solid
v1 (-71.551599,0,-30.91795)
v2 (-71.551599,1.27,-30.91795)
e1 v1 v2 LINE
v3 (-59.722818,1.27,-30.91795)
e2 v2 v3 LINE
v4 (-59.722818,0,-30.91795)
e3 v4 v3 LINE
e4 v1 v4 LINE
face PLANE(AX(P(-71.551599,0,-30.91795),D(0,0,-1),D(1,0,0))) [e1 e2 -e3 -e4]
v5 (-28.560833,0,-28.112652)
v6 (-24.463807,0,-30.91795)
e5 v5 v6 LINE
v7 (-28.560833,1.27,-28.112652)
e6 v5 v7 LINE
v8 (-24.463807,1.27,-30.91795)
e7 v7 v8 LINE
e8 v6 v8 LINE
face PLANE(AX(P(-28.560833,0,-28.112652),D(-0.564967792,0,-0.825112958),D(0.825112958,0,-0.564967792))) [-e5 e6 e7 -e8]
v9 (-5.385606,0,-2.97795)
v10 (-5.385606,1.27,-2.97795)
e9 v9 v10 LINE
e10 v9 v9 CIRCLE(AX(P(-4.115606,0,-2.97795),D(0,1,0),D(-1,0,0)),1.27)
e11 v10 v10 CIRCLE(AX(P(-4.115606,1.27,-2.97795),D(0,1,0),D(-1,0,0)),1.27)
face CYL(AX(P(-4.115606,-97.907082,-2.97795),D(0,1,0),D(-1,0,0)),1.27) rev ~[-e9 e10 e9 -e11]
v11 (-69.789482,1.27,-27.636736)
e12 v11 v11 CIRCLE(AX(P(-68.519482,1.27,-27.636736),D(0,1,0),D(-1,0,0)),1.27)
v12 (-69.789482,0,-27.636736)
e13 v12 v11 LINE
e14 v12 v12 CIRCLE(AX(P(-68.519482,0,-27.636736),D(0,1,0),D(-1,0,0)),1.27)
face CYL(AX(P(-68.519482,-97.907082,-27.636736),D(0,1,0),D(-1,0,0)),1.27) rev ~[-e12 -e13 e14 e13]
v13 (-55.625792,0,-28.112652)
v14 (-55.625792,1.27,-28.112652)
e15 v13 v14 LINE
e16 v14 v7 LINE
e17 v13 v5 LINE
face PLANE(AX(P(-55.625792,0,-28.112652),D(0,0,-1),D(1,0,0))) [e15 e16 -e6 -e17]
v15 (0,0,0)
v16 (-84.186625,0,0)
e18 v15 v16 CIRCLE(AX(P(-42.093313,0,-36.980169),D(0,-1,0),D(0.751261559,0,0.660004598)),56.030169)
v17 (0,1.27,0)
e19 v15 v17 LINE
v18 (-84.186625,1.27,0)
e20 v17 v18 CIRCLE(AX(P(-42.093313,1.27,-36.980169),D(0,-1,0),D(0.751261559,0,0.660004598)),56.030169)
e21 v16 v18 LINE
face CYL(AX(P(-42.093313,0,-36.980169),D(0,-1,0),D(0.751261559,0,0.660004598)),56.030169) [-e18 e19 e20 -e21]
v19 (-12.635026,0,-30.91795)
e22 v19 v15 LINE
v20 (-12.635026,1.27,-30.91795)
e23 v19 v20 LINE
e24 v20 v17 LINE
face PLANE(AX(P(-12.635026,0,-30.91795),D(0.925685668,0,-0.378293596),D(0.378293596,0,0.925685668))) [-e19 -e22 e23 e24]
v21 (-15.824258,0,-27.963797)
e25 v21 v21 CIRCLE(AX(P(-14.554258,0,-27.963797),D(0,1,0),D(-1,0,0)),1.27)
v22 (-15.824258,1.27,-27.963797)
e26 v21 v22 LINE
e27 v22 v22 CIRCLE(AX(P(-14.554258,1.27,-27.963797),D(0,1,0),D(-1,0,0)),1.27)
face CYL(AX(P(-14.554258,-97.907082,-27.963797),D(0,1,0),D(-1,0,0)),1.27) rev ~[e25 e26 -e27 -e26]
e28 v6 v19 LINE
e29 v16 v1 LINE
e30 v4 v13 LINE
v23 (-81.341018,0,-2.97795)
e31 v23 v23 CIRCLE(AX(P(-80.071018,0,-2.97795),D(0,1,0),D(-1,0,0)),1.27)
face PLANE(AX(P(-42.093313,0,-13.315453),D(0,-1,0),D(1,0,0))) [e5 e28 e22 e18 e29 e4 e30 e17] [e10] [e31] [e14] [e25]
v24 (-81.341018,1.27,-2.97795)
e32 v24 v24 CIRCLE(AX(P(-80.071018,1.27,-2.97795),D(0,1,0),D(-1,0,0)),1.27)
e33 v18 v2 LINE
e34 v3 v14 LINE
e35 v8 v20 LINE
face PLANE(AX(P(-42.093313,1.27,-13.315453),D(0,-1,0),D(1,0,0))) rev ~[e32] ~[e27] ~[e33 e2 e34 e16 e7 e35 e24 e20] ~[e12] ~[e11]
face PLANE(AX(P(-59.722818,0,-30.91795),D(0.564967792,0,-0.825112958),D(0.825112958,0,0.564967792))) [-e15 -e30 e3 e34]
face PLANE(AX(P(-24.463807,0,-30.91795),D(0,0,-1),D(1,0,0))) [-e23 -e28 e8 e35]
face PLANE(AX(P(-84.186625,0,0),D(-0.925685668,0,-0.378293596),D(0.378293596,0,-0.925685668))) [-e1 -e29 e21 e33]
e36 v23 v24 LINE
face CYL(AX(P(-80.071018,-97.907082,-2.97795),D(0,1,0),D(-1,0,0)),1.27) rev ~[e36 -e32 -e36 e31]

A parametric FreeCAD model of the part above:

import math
import FreeCAD as App
import Part
import Sketcher
from FreeCAD import Vector
Q = App.Units.Quantity

doc = App.newDocument("Part")
params = doc.addObject("Spreadsheet::Sheet", "Params")
for row, (alias, value) in enumerate([
    ("pad1_length", "0.05 in"),
    ("sketch2_diameter", "0.1 in"),
    ("hole_diameter", "0.1 in"),
], start=1):
    params.set(f"A{row}", alias)
    params.set(f"B{row}", "=" + value)
    params.setAlias(f"B{row}", alias)

body = doc.addObject("PartDesign::Body", "Body")

# Sketch on XZ plane
sketch1 = body.newObject("Sketcher::SketchObject", "Sketch")
sketch1.AttachmentSupport = (doc.getObject("XZ_Plane"), [""])
sketch1.MapMode = "FlatFace"
sketch1.addGeometry(Part.LineSegment(Vector(-12.6, -30.9, 0), Vector(0, 0, 0)), False)
sketch1.addGeometry(Part.ArcOfCircle(Part.Circle(Vector(-42.1, -37, 0), Vector(0, 0, 1), 56), math.radians(41), math.radians(139)), False)
sketch1.addGeometry(Part.LineSegment(Vector(-84.2, 0, 0), Vector(-71.6, -30.9, 0)), False)
sketch1.addGeometry(Part.LineSegment(Vector(-71.6, -30.9, 0), Vector(-59.7, -30.9, 0)), False)
sketch1.addGeometry(Part.LineSegment(Vector(-59.7, -30.9, 0), Vector(-55.6, -28.1, 0)), False)
sketch1.addGeometry(Part.LineSegment(Vector(-55.6, -28.1, 0), Vector(-28.6, -28.1, 0)), False)
sketch1.addGeometry(Part.LineSegment(Vector(-28.6, -28.1, 0), Vector(-24.5, -30.9, 0)), False)
sketch1.addGeometry(Part.LineSegment(Vector(-24.5, -30.9, 0), Vector(-12.6, -30.9, 0)), False)
sketch1.addConstraint(Sketcher.Constraint("Coincident", 0, 2, 1, 1))
sketch1.addConstraint(Sketcher.Constraint("Coincident", 1, 2, 2, 1))
sketch1.addConstraint(Sketcher.Constraint("Coincident", 2, 2, 3, 1))
sketch1.addConstraint(Sketcher.Constraint("Coincident", 3, 2, 4, 1))
sketch1.addConstraint(Sketcher.Constraint("Coincident", 4, 2, 5, 1))
sketch1.addConstraint(Sketcher.Constraint("Coincident", 5, 2, 6, 1))
sketch1.addConstraint(Sketcher.Constraint("Coincident", 6, 2, 7, 1))
sketch1.addConstraint(Sketcher.Constraint("Coincident", 7, 2, 0, 1))
sketch1.addConstraint(Sketcher.Constraint("Horizontal", 3))
sketch1.addConstraint(Sketcher.Constraint("Horizontal", 5))
sketch1.addConstraint(Sketcher.Constraint("Horizontal", 7))
sketch1.addConstraint(Sketcher.Constraint("Coincident", 0, 2, -1, 1))
sketch1.addConstraint(Sketcher.Constraint("PointOnObject", 1, 2, -1))
sketch1.addConstraint(Sketcher.Constraint("Horizontal", 3, 2, 6, 2))
sketch1.addConstraint(Sketcher.Constraint("Equal", 3, 7))
sketch1.addConstraint(Sketcher.Constraint("Equal", 0, 2))
sketch1.addConstraint(Sketcher.Constraint("Equal", 4, 6))
sketch1.addConstraint(Sketcher.Constraint("DistanceX", 3, 1, 3, 2, Q("0.4657 in")))
sketch1.addConstraint(Sketcher.Constraint("Radius", 1, Q("56.030169 mm")))
sketch1.addConstraint(Sketcher.Constraint("DistanceX", 5, 1, 5, 2, Q("27.064959 mm")))
sketch1.addConstraint(Sketcher.Constraint("DistanceX", 2, 2, -1, 1, Q("71.551599 mm")))
sketch1.addConstraint(Sketcher.Constraint("DistanceY", 3, 2, 4, 2, Q("2.805298 mm")))
sketch1.addConstraint(Sketcher.Constraint("DistanceY", 1, 3, -1, 1, Q("36.980169 mm")))
sketch1.addConstraint(Sketcher.Constraint("DistanceY", 2, 2, -1, 1, Q("30.91795 mm")))
pad1 = body.newObject("PartDesign::Pad", "Pad")
pad1.Profile = sketch1
pad1.setExpression("Length", "Params.pad1_length")
pad1.Reversed = True

# Sketch on XZ plane
sketch2 = body.newObject("Sketcher::SketchObject", "Sketch001")
sketch2.AttachmentSupport = (doc.getObject("XZ_Plane"), [""])
sketch2.MapMode = "FlatFace"
sketch2.addGeometry(Part.Circle(Vector(-80.1, -3, 0), Vector(0, 0, 1), 1.3), False)
sketch2.addGeometry(Part.Circle(Vector(-4.1, -3, 0), Vector(0, 0, 1), 1.3), False)
sketch2.addGeometry(Part.Circle(Vector(-14.6, -28, 0), Vector(0, 0, 1), 1.3), False)
sketch2.addGeometry(Part.Circle(Vector(-68.5, -27.6, 0), Vector(0, 0, 1), 1.3), False)
sketch2.addConstraint(Sketcher.Constraint("Equal", 0, 1))
sketch2.addConstraint(Sketcher.Constraint("Equal", 1, 2))
sketch2.addConstraint(Sketcher.Constraint("Equal", 2, 3))
sketch2.addConstraint(Sketcher.Constraint("Horizontal", 0, 3, 1, 3))
sketch2.addConstraint(Sketcher.Constraint("Diameter", 0, Q("0.1 in")))
sketch2.addConstraint(Sketcher.Constraint("DistanceX", 0, 3, 2, 3, Q("2.5794 in")))
sketch2.addConstraint(Sketcher.Constraint("DistanceY", 0, 3, -1, 1, Q("2.97795 mm")))
sketch2.addConstraint(Sketcher.Constraint("DistanceX", 2, 3, -1, 1, Q("14.554258 mm")))
sketch2.addConstraint(Sketcher.Constraint("DistanceX", 3, 3, -1, 1, Q("68.519482 mm")))
sketch2.addConstraint(Sketcher.Constraint("DistanceX", 0, 3, 1, 3, Q("75.955412 mm")))
sketch2.addConstraint(Sketcher.Constraint("DistanceY", 2, 3, 3, 3, Q("0.327061 mm")))
sketch2.addConstraint(Sketcher.Constraint("DistanceY", 2, 3, -1, 1, Q("27.963797 mm")))
sketch2.setExpression("Constraints[4]", "Params.sketch2_diameter")
doc.recompute()
hole = body.newObject("PartDesign::Hole", "Hole")
hole.Profile = sketch2
hole.ThreadType = "None"
hole.setExpression("Diameter", "Params.hole_diameter")
hole.DepthType = "ThroughAll"

doc.recompute()
